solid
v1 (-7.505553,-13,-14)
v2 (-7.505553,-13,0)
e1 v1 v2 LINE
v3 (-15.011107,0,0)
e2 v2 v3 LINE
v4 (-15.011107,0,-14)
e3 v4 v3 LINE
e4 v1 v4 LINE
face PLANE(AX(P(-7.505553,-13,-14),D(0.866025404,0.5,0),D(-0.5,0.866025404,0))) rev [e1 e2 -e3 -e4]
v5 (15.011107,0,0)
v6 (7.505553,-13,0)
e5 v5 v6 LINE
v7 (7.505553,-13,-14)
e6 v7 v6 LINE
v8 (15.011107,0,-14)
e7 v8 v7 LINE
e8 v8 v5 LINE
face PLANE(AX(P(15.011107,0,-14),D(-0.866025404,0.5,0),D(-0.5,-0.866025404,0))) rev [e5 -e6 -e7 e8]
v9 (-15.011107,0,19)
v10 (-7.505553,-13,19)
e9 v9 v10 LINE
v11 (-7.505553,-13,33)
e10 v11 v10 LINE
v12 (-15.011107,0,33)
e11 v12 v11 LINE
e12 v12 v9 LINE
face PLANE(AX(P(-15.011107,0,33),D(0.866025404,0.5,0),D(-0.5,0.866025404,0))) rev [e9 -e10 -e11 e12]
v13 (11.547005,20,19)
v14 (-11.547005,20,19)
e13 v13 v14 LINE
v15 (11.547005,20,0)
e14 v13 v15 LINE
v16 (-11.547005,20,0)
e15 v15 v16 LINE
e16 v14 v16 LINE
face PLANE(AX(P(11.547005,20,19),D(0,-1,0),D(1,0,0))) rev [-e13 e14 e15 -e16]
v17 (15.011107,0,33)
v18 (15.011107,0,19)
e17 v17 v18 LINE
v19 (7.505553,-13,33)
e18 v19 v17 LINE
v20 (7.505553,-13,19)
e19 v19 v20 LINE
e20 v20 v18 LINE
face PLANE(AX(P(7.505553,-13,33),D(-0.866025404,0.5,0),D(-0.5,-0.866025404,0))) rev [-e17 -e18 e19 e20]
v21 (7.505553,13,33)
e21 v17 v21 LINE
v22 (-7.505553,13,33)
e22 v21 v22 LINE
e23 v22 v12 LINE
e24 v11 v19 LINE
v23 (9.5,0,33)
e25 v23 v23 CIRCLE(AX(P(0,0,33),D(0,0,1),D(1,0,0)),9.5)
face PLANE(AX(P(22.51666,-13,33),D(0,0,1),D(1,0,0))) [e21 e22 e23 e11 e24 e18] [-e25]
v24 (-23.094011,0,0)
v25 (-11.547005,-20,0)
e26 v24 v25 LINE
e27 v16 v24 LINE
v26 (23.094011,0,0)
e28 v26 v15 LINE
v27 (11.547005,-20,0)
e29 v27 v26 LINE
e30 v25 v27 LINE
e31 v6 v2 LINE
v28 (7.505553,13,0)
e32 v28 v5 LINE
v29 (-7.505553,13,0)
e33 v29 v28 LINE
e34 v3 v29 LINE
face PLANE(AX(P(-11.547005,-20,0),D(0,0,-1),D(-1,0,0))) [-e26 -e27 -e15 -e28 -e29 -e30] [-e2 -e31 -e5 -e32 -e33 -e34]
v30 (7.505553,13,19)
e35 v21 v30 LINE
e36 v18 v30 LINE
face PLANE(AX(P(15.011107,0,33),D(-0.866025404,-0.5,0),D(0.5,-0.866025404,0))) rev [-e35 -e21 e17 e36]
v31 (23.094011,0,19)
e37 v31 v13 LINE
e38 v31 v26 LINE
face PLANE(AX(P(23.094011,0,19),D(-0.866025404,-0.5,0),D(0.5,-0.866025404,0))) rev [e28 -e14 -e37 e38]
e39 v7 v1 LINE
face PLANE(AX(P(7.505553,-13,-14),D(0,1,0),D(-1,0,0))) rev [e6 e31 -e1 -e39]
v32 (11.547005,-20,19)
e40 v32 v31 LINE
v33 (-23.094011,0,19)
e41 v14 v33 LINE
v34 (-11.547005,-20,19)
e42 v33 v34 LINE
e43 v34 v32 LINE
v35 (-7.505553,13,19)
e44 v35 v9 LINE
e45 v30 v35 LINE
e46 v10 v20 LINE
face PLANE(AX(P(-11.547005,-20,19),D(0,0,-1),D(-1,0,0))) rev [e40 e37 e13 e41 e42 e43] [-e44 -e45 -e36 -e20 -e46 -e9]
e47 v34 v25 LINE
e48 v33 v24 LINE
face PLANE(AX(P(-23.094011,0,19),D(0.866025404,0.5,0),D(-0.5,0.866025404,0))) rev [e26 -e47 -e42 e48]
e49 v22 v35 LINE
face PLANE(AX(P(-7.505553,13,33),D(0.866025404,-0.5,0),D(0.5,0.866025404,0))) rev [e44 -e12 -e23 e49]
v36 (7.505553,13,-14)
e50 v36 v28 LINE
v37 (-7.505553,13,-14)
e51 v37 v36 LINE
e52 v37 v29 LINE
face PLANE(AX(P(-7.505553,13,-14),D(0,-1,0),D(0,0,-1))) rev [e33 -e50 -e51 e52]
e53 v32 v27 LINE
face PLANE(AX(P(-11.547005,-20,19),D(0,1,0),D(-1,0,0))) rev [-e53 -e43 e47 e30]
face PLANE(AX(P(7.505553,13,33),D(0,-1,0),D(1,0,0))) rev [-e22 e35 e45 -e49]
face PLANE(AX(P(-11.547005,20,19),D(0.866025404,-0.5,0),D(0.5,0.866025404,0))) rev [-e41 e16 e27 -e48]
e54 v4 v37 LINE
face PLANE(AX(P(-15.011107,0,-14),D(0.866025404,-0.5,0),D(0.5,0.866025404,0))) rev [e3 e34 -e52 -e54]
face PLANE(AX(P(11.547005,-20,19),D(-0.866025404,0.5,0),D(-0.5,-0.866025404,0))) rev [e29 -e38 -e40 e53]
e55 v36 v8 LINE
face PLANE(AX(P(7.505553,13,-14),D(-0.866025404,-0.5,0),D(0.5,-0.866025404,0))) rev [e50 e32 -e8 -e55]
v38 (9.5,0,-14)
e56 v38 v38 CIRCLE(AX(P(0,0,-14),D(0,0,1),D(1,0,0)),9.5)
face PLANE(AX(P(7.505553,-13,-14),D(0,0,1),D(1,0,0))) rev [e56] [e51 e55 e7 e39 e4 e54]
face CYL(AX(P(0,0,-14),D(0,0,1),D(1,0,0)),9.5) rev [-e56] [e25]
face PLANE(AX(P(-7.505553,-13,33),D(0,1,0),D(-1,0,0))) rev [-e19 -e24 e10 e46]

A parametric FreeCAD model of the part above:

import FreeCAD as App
import Part
import Sketcher
Q = App.Units.Quantity

doc = App.newDocument("Part")
params = doc.addObject("Spreadsheet::Sheet", "Params")
for row, (alias, value) in enumerate([
    ("pad1_length", "19 mm"),
    ("pad2_length", "14 mm"),
    ("pad3_length", "14 mm"),
    ("sketch4_diameter", "19 mm"),
], start=1):
    params.set(f"A{row}", alias)
    params.set(f"B{row}", "=" + value)
    params.setAlias(f"B{row}", alias)

body = doc.addObject("PartDesign::Body", "Body")

# Sketch on XY plane
sketch1 = body.newObject("Sketcher::SketchObject", "Sketch")
sketch1.AttachmentSupport = (doc.getObject("XY_Plane"), [""])
sketch1.MapMode = "FlatFace"
sketch1.addGeometry(Part.LineSegment(App.Vector(12, -20, 0), App.Vector(23, 0, 0)), False)
sketch1.addGeometry(Part.LineSegment(App.Vector(23, 0, 0), App.Vector(12, 20, 0)), False)
sketch1.addGeometry(Part.LineSegment(App.Vector(12, 20, 0), App.Vector(-12, 20, 0)), False)
sketch1.addGeometry(Part.LineSegment(App.Vector(-12, 20, 0), App.Vector(-23, 0, 0)), False)
sketch1.addGeometry(Part.LineSegment(App.Vector(-23, 0, 0), App.Vector(-12, -20, 0)), False)
sketch1.addGeometry(Part.LineSegment(App.Vector(-12, -20, 0), App.Vector(12, -20, 0)), False)
sketch1.addConstraint(Sketcher.Constraint("Coincident", 0, 2, 1, 1))
sketch1.addConstraint(Sketcher.Constraint("Coincident", 1, 2, 2, 1))
sketch1.addConstraint(Sketcher.Constraint("Coincident", 2, 2, 3, 1))
sketch1.addConstraint(Sketcher.Constraint("Coincident", 3, 2, 4, 1))
sketch1.addConstraint(Sketcher.Constraint("Coincident", 4, 2, 5, 1))
sketch1.addConstraint(Sketcher.Constraint("Coincident", 5, 2, 0, 1))
sketch1.addConstraint(Sketcher.Constraint("Horizontal", 2))
sketch1.addConstraint(Sketcher.Constraint("Horizontal", 5))
sketch1.addConstraint(Sketcher.Constraint("Symmetric", 0, 2, 3, 2, -1, 1))
sketch1.addConstraint(Sketcher.Constraint("Symmetric", 1, 2, 4, 2, -1, 1))
sketch1.addConstraint(Sketcher.Constraint("PointOnObject", 0, 2, -1))
sketch1.addConstraint(Sketcher.Constraint("Parallel", 0, 3))
sketch1.addConstraint(Sketcher.Constraint("Vertical", 2, 2, 4, 2))
sketch1.addConstraint(Sketcher.Constraint("Angle", 0, Q("60 deg")))
sketch1.addConstraint(Sketcher.Constraint("DistanceY", -1, 1, 1, 2, Q("20 mm")))
sketch1.addConstraint(Sketcher.Constraint("DistanceX", 2, 2, 2, 1, Q("23.094011 mm")))
pad1 = body.newObject("PartDesign::Pad", "Pad")
pad1.Profile = sketch1
pad1.setExpression("Length", "Params.pad1_length")

# Sketch on XY plane
sketch2 = body.newObject("Sketcher::SketchObject", "Sketch001")
sketch2.AttachmentSupport = (doc.getObject("XY_Plane"), [""])
sketch2.MapMode = "FlatFace"
sketch2.AttachmentOffset = App.Placement(App.Vector(0, 0, 19), App.Rotation())
sketch2.addGeometry(Part.LineSegment(App.Vector(8, -13, 0), App.Vector(15, 0, 0)), False)
sketch2.addGeometry(Part.LineSegment(App.Vector(15, 0, 0), App.Vector(8, 13, 0)), False)
sketch2.addGeometry(Part.LineSegment(App.Vector(8, 13, 0), App.Vector(-8, 13, 0)), False)
sketch2.addGeometry(Part.LineSegment(App.Vector(-8, 13, 0), App.Vector(-15, 0, 0)), False)
sketch2.addGeometry(Part.LineSegment(App.Vector(-15, 0, 0), App.Vector(-8, -13, 0)), False)
sketch2.addGeometry(Part.LineSegment(App.Vector(-8, -13, 0), App.Vector(8, -13, 0)), False)
sketch2.addConstraint(Sketcher.Constraint("Coincident", 0, 2, 1, 1))
sketch2.addConstraint(Sketcher.Constraint("Coincident", 1, 2, 2, 1))
sketch2.addConstraint(Sketcher.Constraint("Coincident", 2, 2, 3, 1))
sketch2.addConstraint(Sketcher.Constraint("Coincident", 3, 2, 4, 1))
sketch2.addConstraint(Sketcher.Constraint("Coincident", 4, 2, 5, 1))
sketch2.addConstraint(Sketcher.Constraint("Coincident", 5, 2, 0, 1))
sketch2.addConstraint(Sketcher.Constraint("Horizontal", 2))
sketch2.addConstraint(Sketcher.Constraint("Horizontal", 5))
sketch2.addConstraint(Sketcher.Constraint("Symmetric", 0, 2, 3, 2, -1, 1))
sketch2.addConstraint(Sketcher.Constraint("Symmetric", 1, 2, 4, 2, -1, 1))
sketch2.addConstraint(Sketcher.Constraint("PointOnObject", 0, 2, -1))
sketch2.addConstraint(Sketcher.Constraint("Parallel", 0, 3))
sketch2.addConstraint(Sketcher.Constraint("Vertical", 2, 2, 4, 2))
sketch2.addConstraint(Sketcher.Constraint("Angle", 0, Q("60 deg")))
sketch2.addConstraint(Sketcher.Constraint("DistanceY", -1, 1, 1, 2, Q("13 mm")))
sketch2.addConstraint(Sketcher.Constraint("DistanceX", 2, 2, 2, 1, Q("15.011107 mm")))
pad2 = body.newObject("PartDesign::Pad", "Pad001")
pad2.Profile = sketch2
pad2.setExpression("Length", "Params.pad2_length")

# Sketch on XY plane
sketch3 = body.newObject("Sketcher::SketchObject", "Sketch002")
sketch3.AttachmentSupport = (doc.getObject("XY_Plane"), [""])
sketch3.MapMode = "FlatFace"
sketch3.addGeometry(Part.LineSegment(App.Vector(-8, -13, 0), App.Vector(-15, 0, 0)), False)
sketch3.addGeometry(Part.LineSegment(App.Vector(-15, 0, 0), App.Vector(-8, 13, 0)), False)
sketch3.addGeometry(Part.LineSegment(App.Vector(-8, 13, 0), App.Vector(8, 13, 0)), False)
sketch3.addGeometry(Part.LineSegment(App.Vector(8, 13, 0), App.Vector(15, 0, 0)), False)
sketch3.addGeometry(Part.LineSegment(App.Vector(15, 0, 0), App.Vector(8, -13, 0)), False)
sketch3.addGeometry(Part.LineSegment(App.Vector(8, -13, 0), App.Vector(-8, -13, 0)), False)
sketch3.addConstraint(Sketcher.Constraint("Coincident", 0, 2, 1, 1))
sketch3.addConstraint(Sketcher.Constraint("Coincident", 1, 2, 2, 1))
sketch3.addConstraint(Sketcher.Constraint("Coincident", 2, 2, 3, 1))
sketch3.addConstraint(Sketcher.Constraint("Coincident", 3, 2, 4, 1))
sketch3.addConstraint(Sketcher.Constraint("Coincident", 4, 2, 5, 1))
sketch3.addConstraint(Sketcher.Constraint("Coincident", 5, 2, 0, 1))
sketch3.addConstraint(Sketcher.Constraint("Horizontal", 2))
sketch3.addConstraint(Sketcher.Constraint("Horizontal", 5))
sketch3.addConstraint(Sketcher.Constraint("Symmetric", 0, 2, 3, 2, -1, 1))
sketch3.addConstraint(Sketcher.Constraint("Symmetric", 1, 2, 4, 2, -1, 1))
sketch3.addConstraint(Sketcher.Constraint("PointOnObject", 0, 2, -1))
sketch3.addConstraint(Sketcher.Constraint("Parallel", 0, 3))
sketch3.addConstraint(Sketcher.Constraint("Vertical", 2, 2, 4, 2))
sketch3.addConstraint(Sketcher.Constraint("Angle", 0, Q("120 deg")))
sketch3.addConstraint(Sketcher.Constraint("DistanceY", -1, 1, 1, 2, Q("13 mm")))
sketch3.addConstraint(Sketcher.Constraint("DistanceX", 2, 1, 2, 2, Q("15.011107 mm")))
pad3 = body.newObject("PartDesign::Pad", "Pad002")
pad3.Profile = sketch3
pad3.setExpression("Length", "Params.pad3_length")
pad3.Reversed = True

# Sketch on XY plane
sketch4 = body.newObject("Sketcher::SketchObject", "Sketch003")
sketch4.AttachmentSupport = (doc.getObject("XY_Plane"), [""])
sketch4.MapMode = "FlatFace"
sketch4.AttachmentOffset = App.Placement(App.Vector(0, 0, 33), App.Rotation())
sketch4.addGeometry(Part.Circle(App.Vector(0, 0, 0), App.Vector(0, 0, 1), 10), False)
sketch4.addConstraint(Sketcher.Constraint("Coincident", 0, 3, -1, 1))
sketch4.addConstraint(Sketcher.Constraint("Diameter", 0, Q("19 mm")))
sketch4.setExpression("Constraints[1]", "Params.sketch4_diameter")
pocket1 = body.newObject("PartDesign::Pocket", "Pocket")
pocket1.Profile = sketch4
pocket1.Type = "ThroughAll"

doc.recompute()
